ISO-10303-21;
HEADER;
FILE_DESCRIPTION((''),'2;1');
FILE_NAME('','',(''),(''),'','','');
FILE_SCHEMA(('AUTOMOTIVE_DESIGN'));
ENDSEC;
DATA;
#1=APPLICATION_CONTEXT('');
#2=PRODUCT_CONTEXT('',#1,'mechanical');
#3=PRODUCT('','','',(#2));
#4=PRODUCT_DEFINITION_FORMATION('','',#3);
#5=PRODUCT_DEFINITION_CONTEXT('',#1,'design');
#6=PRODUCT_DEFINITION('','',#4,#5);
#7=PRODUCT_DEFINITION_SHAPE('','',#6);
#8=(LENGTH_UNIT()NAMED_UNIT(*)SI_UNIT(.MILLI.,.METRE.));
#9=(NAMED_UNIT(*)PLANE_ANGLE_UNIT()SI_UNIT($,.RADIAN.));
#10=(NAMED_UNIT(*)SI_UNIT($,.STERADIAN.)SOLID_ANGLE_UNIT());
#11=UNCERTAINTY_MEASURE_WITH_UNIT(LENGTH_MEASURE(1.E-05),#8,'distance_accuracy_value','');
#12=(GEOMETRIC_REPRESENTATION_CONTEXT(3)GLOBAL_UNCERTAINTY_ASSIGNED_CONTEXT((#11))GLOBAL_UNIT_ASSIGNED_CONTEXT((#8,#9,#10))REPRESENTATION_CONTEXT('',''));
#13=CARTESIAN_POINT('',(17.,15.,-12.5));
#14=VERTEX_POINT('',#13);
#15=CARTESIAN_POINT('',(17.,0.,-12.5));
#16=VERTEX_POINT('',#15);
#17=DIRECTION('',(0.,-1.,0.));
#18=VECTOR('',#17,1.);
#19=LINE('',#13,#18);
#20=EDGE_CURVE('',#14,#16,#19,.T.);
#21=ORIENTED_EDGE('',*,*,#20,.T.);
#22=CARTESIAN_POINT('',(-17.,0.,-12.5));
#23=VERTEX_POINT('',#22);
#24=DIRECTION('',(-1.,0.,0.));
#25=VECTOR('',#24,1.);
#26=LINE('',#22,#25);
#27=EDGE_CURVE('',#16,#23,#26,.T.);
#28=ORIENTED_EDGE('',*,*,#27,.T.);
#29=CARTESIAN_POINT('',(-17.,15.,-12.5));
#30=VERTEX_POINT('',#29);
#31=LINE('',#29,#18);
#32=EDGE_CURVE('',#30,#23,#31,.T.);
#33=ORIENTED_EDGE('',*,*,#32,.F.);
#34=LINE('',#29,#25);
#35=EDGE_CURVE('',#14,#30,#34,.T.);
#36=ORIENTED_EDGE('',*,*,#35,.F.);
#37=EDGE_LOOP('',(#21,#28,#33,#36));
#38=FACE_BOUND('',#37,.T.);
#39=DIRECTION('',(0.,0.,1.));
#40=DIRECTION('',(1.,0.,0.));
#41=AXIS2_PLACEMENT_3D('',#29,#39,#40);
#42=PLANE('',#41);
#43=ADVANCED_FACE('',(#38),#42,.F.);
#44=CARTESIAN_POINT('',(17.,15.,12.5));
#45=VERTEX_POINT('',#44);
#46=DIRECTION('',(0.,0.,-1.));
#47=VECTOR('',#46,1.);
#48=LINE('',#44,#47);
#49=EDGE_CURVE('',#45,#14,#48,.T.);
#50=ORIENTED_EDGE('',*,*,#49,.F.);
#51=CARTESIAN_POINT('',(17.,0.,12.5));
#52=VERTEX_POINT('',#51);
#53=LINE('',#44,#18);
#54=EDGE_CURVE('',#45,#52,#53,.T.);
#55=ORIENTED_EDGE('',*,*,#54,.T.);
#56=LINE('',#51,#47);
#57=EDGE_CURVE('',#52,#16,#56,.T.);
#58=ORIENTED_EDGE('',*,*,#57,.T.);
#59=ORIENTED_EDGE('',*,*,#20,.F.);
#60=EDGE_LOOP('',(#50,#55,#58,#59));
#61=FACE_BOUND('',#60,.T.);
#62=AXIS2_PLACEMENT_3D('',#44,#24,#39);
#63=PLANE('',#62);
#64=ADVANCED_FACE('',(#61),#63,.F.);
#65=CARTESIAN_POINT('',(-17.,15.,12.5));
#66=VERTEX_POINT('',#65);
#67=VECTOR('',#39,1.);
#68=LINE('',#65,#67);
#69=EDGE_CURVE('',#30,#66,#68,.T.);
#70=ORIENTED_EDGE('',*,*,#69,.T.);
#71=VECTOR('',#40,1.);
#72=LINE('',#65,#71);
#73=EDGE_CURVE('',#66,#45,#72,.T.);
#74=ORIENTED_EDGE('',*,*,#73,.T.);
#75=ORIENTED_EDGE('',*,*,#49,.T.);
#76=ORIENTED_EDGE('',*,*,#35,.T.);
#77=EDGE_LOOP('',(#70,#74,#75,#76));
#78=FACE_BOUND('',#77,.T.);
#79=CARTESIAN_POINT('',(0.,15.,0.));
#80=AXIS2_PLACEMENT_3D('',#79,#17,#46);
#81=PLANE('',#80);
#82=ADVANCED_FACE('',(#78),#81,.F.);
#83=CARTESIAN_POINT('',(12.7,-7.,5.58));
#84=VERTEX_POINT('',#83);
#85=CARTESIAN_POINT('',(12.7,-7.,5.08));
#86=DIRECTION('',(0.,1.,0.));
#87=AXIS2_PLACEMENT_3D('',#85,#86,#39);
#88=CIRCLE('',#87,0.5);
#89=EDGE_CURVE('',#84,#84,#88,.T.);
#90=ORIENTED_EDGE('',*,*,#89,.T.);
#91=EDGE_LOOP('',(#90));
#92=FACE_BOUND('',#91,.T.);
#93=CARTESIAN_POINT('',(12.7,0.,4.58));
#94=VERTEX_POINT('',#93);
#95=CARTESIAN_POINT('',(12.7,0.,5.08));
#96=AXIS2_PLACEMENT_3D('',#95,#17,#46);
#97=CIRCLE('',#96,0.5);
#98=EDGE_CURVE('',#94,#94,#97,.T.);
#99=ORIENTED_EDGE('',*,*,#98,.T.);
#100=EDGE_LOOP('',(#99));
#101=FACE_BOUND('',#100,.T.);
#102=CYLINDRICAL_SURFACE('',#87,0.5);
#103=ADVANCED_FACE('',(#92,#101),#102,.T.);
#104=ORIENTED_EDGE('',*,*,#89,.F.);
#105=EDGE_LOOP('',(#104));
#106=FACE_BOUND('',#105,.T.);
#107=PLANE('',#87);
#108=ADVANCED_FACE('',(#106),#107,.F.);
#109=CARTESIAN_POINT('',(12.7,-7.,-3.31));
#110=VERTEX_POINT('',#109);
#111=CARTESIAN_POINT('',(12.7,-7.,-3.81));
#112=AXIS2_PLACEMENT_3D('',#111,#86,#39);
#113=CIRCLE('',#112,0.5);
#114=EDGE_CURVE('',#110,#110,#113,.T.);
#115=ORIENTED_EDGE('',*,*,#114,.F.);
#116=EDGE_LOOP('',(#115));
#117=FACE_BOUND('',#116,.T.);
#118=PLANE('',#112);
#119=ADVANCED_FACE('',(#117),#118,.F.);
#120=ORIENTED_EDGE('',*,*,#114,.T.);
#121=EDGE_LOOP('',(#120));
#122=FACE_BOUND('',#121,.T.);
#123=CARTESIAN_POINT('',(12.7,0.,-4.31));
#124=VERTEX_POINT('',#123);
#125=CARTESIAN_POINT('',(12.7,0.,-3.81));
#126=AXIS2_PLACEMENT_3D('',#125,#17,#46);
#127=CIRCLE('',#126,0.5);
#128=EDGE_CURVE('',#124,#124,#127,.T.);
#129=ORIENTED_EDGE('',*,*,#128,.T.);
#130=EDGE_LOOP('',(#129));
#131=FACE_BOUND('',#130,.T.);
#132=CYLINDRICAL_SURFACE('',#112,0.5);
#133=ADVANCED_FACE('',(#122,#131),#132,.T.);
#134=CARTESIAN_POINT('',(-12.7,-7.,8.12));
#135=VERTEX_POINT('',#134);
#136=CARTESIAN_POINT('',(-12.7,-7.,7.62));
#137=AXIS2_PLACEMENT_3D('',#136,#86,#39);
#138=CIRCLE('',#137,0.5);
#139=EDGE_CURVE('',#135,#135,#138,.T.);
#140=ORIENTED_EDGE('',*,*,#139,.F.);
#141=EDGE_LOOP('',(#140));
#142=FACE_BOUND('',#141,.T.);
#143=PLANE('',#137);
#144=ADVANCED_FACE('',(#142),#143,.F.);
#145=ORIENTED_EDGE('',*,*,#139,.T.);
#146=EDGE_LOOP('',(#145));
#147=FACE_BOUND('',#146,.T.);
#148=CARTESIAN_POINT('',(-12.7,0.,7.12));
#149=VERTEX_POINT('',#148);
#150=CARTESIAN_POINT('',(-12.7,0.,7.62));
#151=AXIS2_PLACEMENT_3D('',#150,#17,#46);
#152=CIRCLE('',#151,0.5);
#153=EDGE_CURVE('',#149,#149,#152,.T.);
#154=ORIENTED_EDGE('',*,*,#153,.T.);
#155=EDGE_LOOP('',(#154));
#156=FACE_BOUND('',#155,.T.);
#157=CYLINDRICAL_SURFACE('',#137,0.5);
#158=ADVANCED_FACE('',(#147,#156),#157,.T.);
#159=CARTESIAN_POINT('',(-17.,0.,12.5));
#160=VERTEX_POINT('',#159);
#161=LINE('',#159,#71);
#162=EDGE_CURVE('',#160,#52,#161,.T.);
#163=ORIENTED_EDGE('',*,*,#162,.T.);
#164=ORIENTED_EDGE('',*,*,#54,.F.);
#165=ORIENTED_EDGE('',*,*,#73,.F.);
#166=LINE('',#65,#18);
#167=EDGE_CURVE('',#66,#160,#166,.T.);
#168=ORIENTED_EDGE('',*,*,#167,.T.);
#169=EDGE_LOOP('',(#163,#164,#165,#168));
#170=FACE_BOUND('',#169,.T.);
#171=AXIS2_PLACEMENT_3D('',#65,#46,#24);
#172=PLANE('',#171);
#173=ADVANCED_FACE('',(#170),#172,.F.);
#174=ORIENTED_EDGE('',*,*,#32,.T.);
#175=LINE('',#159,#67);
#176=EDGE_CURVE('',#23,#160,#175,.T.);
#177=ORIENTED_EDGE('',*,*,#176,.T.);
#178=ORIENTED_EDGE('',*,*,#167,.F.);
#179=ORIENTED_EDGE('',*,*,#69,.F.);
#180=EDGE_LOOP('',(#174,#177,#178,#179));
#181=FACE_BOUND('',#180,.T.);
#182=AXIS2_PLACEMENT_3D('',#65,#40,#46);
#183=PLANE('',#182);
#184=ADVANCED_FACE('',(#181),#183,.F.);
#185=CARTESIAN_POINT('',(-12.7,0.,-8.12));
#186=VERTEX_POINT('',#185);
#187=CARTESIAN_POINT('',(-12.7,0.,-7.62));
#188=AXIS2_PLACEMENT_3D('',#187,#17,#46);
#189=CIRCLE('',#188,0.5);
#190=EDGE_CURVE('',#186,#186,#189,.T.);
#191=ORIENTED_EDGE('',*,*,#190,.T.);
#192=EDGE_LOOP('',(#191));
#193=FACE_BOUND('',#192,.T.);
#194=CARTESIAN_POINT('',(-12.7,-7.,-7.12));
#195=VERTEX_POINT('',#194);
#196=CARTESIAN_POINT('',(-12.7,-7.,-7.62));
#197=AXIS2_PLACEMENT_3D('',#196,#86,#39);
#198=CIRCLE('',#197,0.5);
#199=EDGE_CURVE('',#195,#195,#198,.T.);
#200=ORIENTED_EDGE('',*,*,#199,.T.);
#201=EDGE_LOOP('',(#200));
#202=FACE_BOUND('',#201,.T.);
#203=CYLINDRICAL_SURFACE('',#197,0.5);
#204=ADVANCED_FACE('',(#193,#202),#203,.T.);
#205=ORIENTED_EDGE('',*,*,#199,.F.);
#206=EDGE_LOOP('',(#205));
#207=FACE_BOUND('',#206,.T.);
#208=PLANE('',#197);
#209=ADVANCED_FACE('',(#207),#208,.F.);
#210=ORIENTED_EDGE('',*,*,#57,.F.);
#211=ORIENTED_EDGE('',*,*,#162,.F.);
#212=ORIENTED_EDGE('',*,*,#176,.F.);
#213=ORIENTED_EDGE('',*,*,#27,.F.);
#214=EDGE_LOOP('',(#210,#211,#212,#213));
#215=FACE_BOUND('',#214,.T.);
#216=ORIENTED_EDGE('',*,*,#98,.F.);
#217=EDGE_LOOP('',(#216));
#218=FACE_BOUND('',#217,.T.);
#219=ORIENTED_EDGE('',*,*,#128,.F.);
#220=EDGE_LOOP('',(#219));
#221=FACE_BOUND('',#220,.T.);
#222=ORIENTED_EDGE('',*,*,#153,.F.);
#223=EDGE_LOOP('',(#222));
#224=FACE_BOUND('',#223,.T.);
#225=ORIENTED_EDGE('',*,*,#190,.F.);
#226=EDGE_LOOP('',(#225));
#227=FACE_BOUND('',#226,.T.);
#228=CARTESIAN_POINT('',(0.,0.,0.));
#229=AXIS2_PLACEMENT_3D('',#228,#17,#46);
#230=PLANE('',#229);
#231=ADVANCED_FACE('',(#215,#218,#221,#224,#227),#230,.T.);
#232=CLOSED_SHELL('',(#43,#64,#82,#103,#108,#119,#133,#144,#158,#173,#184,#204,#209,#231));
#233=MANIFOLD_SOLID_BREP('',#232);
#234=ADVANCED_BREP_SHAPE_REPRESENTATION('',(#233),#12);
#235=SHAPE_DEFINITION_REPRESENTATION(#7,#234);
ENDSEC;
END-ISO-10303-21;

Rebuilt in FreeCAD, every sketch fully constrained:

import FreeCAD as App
import Part
import Sketcher
from FreeCAD import Vector
Q = App.Units.Quantity


def add_polygon(sketch, points):
    """Adds a closed chain of lines whose ends are joined by coincident constraints."""
    first, n = sketch.GeometryCount, len(points)
    for a, b in zip(points, points[1:] + points[:1]):
        sketch.addGeometry(Part.LineSegment(App.Vector(*a, 0), App.Vector(*b, 0)), False)
    for i in range(n):
        sketch.addConstraint(Sketcher.Constraint("Coincident", first + i, 2, first + (i + 1) % n, 1))

doc = App.newDocument("Part")
params = doc.addObject("Spreadsheet::Sheet", "Params")
for row, (alias, value) in enumerate([
    ("sketch1_width", "34 mm"),
    ("sketch1_height", "25 mm"),
    ("pad1_length", "15 mm"),
    ("sketch2_diameter", "1 mm"),
    ("pad2_length", "7 mm"),
], start=1):
    params.set(f"A{row}", alias)
    params.set(f"B{row}", "=" + value)
    params.setAlias(f"B{row}", alias)

body = doc.addObject("PartDesign::Body", "Body")

# Sketch on XZ plane
sketch1 = doc.addObject("Sketcher::SketchObject", "Sketch")
body.addObject(sketch1)
sketch1.AttachmentSupport = (doc.XZ_Plane, [""])
sketch1.MapMode = "FlatFace"
add_polygon(sketch1, [(-17, -12.5), (-17, 12.5), (17, 12.5), (17, -12.5)])  # lines 0-3
sketch1.addConstraint(Sketcher.Constraint("Vertical", 0))
sketch1.addConstraint(Sketcher.Constraint("Horizontal", 1))
sketch1.addConstraint(Sketcher.Constraint("Vertical", 2))
sketch1.addConstraint(Sketcher.Constraint("Horizontal", 3))
sketch1.addConstraint(Sketcher.Constraint("Symmetric", 0, 2, 2, 2, -1, 1))
sketch1.addConstraint(Sketcher.Constraint("DistanceX", 1, 1, 1, 2, Q("34 mm")))
sketch1.addConstraint(Sketcher.Constraint("DistanceY", 0, 1, 0, 2, Q("25 mm")))
sketch1.setExpression("Constraints[9]", "Params.sketch1_width")
sketch1.setExpression("Constraints[10]", "Params.sketch1_height")
pad1 = doc.addObject("PartDesign::Pad", "Pad")
body.addObject(pad1)
pad1.Profile = sketch1
pad1.setExpression("Length", "Params.pad1_length")
pad1.Reversed = True

# Sketch on XZ plane
sketch2 = doc.addObject("Sketcher::SketchObject", "Sketch001")
body.addObject(sketch2)
sketch2.AttachmentSupport = (doc.XZ_Plane, [""])
sketch2.MapMode = "FlatFace"
sketch2.addGeometry(Part.Circle(Vector(-12.7, -7.62, 0), Vector(0, 0, 1), 0.5), False)
sketch2.addGeometry(Part.Circle(Vector(-12.7, 7.62, 0), Vector(0, 0, 1), 0.5), False)
sketch2.addGeometry(Part.Circle(Vector(12.7, -3.81, 0), Vector(0, 0, 1), 0.5), False)
sketch2.addGeometry(Part.Circle(Vector(12.7, 5.08, 0), Vector(0, 0, 1), 0.5), False)
sketch2.addConstraint(Sketcher.Constraint("Equal", 0, 1))
sketch2.addConstraint(Sketcher.Constraint("Equal", 1, 2))
sketch2.addConstraint(Sketcher.Constraint("Equal", 2, 3))
sketch2.addConstraint(Sketcher.Constraint("Symmetric", 0, 3, 1, 3, -1))
sketch2.addConstraint(Sketcher.Constraint("Vertical", 2, 3, 3, 3))
sketch2.addConstraint(Sketcher.Constraint("Diameter", 0, Q("1 mm")))
sketch2.addConstraint(Sketcher.Constraint("DistanceX", 0, 3, -1, 1, Q("12.7 mm")))
sketch2.addConstraint(Sketcher.Constraint("DistanceX", -1, 1, 2, 3, Q("12.7 mm")))
sketch2.addConstraint(Sketcher.Constraint("DistanceY", 0, 3, 3, 3, Q("12.7 mm")))
sketch2.addConstraint(Sketcher.Constraint("DistanceY", 0, 3, -1, 1, Q("7.62 mm")))
sketch2.addConstraint(Sketcher.Constraint("DistanceY", 2, 3, -1, 1, Q("3.81 mm")))
sketch2.setExpression("Constraints[5]", "Params.sketch2_diameter")
pad2 = doc.addObject("PartDesign::Pad", "Pad001")
body.addObject(pad2)
pad2.Profile = sketch2
pad2.setExpression("Length", "Params.pad2_length")

doc.recompute()
